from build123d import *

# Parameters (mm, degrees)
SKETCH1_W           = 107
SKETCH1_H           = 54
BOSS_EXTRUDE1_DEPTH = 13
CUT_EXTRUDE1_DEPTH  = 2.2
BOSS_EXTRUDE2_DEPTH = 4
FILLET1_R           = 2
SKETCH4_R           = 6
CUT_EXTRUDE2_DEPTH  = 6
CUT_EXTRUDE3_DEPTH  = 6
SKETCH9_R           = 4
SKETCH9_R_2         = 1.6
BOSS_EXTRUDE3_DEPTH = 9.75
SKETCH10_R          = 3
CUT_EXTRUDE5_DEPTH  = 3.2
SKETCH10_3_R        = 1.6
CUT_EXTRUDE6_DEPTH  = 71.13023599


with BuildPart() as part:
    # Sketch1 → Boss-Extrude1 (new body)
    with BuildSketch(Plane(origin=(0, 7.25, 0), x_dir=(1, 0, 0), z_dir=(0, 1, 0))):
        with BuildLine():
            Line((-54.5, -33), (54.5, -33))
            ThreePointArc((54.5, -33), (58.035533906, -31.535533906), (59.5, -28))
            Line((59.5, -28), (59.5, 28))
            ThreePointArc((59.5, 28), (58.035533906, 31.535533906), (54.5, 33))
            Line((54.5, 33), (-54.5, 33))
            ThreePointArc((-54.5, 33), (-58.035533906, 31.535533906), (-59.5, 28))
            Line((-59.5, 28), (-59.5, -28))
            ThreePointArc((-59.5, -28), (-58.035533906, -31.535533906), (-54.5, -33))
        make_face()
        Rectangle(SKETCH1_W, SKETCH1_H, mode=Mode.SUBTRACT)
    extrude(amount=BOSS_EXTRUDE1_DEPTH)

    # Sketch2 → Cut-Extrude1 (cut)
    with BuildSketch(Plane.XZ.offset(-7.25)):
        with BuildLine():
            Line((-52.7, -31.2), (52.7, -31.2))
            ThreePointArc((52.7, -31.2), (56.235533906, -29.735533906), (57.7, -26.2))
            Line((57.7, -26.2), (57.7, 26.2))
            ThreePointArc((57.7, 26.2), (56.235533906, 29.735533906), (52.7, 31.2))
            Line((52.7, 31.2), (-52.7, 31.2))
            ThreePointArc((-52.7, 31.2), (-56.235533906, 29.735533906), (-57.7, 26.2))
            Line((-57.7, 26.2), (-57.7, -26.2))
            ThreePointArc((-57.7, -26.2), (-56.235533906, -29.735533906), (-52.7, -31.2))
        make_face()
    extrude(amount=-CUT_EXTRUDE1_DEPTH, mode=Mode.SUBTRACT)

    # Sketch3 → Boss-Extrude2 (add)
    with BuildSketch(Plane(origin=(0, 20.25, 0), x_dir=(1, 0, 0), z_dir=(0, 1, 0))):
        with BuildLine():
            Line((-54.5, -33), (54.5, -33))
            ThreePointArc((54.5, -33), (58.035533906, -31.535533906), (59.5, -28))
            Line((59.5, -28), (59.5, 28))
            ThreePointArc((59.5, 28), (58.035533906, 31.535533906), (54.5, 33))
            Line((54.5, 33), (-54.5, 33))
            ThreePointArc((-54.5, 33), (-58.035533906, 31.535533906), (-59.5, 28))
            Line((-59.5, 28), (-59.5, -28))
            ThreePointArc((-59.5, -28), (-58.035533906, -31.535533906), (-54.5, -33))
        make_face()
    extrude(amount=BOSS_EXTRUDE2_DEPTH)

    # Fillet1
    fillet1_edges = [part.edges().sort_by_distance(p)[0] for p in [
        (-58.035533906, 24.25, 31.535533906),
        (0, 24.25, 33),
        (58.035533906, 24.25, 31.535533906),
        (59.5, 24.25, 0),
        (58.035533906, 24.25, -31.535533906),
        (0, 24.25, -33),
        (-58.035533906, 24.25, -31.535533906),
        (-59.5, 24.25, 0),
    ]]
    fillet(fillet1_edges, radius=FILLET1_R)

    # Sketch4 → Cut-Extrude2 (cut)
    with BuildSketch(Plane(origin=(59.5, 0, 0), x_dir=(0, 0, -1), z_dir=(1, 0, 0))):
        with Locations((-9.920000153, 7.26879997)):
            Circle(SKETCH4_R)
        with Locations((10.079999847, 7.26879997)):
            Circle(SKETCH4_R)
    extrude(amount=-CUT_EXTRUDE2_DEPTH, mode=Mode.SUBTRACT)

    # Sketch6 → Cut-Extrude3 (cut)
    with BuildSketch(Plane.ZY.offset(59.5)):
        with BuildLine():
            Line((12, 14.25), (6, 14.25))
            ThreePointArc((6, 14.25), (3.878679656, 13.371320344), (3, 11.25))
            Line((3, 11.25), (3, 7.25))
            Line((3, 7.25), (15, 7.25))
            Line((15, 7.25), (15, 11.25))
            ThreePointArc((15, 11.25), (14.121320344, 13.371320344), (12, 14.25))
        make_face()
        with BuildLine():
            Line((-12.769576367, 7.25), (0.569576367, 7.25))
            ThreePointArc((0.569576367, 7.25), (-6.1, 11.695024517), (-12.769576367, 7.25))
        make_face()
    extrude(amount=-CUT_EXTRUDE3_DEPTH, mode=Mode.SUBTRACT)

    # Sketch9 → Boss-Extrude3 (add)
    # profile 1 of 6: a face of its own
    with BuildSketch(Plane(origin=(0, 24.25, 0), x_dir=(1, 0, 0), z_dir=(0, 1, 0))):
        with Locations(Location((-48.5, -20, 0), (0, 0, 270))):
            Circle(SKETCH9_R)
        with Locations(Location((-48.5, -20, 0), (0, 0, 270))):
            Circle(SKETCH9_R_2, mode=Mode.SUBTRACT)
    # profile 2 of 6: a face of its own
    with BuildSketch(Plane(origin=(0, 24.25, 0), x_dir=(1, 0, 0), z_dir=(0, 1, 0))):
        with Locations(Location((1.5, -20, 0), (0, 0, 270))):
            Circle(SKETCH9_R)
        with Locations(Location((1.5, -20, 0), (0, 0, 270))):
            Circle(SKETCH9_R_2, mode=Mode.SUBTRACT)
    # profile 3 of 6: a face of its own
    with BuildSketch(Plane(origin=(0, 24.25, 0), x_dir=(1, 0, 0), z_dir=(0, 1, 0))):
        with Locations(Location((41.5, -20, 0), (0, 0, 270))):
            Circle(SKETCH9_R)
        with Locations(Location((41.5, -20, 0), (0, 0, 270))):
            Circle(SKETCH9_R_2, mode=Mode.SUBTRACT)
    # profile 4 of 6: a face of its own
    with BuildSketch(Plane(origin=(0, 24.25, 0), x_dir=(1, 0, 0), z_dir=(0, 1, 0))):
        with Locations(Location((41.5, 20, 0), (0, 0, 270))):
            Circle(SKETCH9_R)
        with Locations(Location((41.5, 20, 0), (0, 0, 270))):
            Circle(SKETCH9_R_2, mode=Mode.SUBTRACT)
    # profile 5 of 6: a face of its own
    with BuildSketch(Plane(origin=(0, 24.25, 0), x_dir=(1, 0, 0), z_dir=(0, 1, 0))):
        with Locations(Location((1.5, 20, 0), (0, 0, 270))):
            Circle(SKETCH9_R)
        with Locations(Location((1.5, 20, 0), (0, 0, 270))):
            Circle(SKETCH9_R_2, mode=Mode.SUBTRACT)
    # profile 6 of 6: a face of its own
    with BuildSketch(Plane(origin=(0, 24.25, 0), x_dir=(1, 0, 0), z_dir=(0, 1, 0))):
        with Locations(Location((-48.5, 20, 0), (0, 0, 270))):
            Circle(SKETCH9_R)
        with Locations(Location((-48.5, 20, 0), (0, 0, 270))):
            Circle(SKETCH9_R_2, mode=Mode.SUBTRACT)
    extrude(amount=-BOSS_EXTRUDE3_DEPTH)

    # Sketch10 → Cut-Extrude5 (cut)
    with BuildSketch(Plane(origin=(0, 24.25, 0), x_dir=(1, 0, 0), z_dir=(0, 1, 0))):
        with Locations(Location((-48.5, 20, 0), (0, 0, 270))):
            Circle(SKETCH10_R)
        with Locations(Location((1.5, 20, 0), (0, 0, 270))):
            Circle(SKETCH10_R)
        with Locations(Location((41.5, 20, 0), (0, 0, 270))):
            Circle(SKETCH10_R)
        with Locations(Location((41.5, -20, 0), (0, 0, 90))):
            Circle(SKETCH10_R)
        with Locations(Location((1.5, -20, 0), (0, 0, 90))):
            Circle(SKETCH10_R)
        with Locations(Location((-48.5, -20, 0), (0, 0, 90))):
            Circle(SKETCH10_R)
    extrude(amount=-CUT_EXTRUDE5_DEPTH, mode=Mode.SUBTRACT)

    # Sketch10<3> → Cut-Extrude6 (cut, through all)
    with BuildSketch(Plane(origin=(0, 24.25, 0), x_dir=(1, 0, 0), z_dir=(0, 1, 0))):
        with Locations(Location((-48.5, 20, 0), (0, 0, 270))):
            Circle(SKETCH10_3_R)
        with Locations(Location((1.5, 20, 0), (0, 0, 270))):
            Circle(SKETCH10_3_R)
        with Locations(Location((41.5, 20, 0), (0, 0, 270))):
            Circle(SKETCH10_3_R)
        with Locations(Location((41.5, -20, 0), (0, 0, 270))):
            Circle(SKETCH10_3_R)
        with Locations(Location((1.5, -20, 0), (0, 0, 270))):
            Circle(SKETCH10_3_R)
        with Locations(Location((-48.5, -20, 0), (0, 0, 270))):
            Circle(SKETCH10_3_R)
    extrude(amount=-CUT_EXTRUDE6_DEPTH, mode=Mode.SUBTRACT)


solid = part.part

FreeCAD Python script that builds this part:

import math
import FreeCAD as App
import Part
import Sketcher
from FreeCAD import Vector
Q = App.Units.Quantity


def edges_at(feature, points):
    """Names of the edges that pass closest to the given points."""
    edges = feature.Shape.Edges
    near = lambda p: min(range(len(edges)), key=lambda i: edges[i].distToShape(Part.Vertex(*p))[0])
    return sorted({f"Edge{near(p) + 1}" for p in points})

doc = App.newDocument("Part")
body = doc.addObject("PartDesign::Body", "Body")

# Sketch on XZ plane
sketch1 = body.newObject("Sketcher::SketchObject", "Sketch")
sketch1.AttachmentSupport = (doc.getObject("XZ_Plane"), [""])
sketch1.MapMode = "FlatFace"
sketch1.AttachmentOffset = App.Placement(Vector(0, 0, -7.25), App.Rotation())
sketch1.addGeometry([
    Part.LineSegment(Vector(-54.5, 33, 0), Vector(54.5, 33, 0)),  # 0
    Part.ArcOfCircle(Part.Circle(Vector(54.5, 28, 0), Vector(0, 0, 1), 5), math.radians(0), math.radians(90)),  # 1
    Part.LineSegment(Vector(59.5, 28, 0), Vector(59.5, -28, 0)),  # 2
    Part.ArcOfCircle(Part.Circle(Vector(54.5, -28, 0), Vector(0, 0, 1), 5), math.radians(-90), math.radians(0)),  # 3
    Part.LineSegment(Vector(54.5, -33, 0), Vector(-54.5, -33, 0)),  # 4
    Part.ArcOfCircle(Part.Circle(Vector(-54.5, -28, 0), Vector(0, 0, 1), 5), math.radians(180), math.radians(270)),  # 5
    Part.LineSegment(Vector(-59.5, -28, 0), Vector(-59.5, 28, 0)),  # 6
    Part.ArcOfCircle(Part.Circle(Vector(-54.5, 28, 0), Vector(0, 0, 1), 5), math.radians(90), math.radians(180)),  # 7
    Part.LineSegment(Vector(53.5, 27, 0), Vector(-53.5, 27, 0)),  # 8
    Part.LineSegment(Vector(-53.5, 27, 0), Vector(-53.5, -27, 0)),  # 9
    Part.LineSegment(Vector(-53.5, -27, 0), Vector(53.5, -27, 0)),  # 10
    Part.LineSegment(Vector(53.5, -27, 0), Vector(53.5, 27, 0)),  # 11
], False)
sketch1.addConstraint([
    Sketcher.Constraint("Tangent", 0, 2, 1, 2),
    Sketcher.Constraint("Tangent", 1, 1, 2, 1),
    Sketcher.Constraint("Tangent", 2, 2, 3, 2),
    Sketcher.Constraint("Tangent", 3, 1, 4, 1),
    Sketcher.Constraint("Tangent", 4, 2, 5, 2),
    Sketcher.Constraint("Tangent", 5, 1, 6, 1),
    Sketcher.Constraint("Tangent", 6, 2, 7, 2),
    Sketcher.Constraint("Tangent", 7, 1, 0, 1),
    Sketcher.Constraint("Coincident", 8, 2, 9, 1),
    Sketcher.Constraint("Coincident", 9, 2, 10, 1),
    Sketcher.Constraint("Coincident", 10, 2, 11, 1),
    Sketcher.Constraint("Coincident", 11, 2, 8, 1),
    Sketcher.Constraint("Horizontal", 0),
    Sketcher.Constraint("Vertical", 2),
    Sketcher.Constraint("Horizontal", 4),
    Sketcher.Constraint("Vertical", 6),
    Sketcher.Constraint("Horizontal", 8),
    Sketcher.Constraint("Vertical", 9),
    Sketcher.Constraint("Horizontal", 10),
    Sketcher.Constraint("Vertical", 11),
    Sketcher.Constraint("Equal", 1, 3),
    Sketcher.Constraint("Equal", 3, 5),
    Sketcher.Constraint("Equal", 5, 7),
    Sketcher.Constraint("Symmetric", 1, 3, 5, 3, -1, 1),
    Sketcher.Constraint("Symmetric", 8, 2, 10, 2, -1, 1),
    Sketcher.Constraint("Radius", 1, Q("5 mm")),
    Sketcher.Constraint("DistanceX", 0, 1, 0, 2, Q("109 mm")),
    Sketcher.Constraint("DistanceX", 8, 2, 8, 1, Q("107 mm")),
    Sketcher.Constraint("DistanceY", 2, 2, 2, 1, Q("56 mm")),
    Sketcher.Constraint("DistanceY", 9, 2, 9, 1, Q("54 mm")),
])
pad1 = body.newObject("PartDesign::Pad", "Pad")
pad1.Profile = sketch1
pad1.Length = 13
pad1.Reversed = True

# Sketch on XZ plane
sketch2 = body.newObject("Sketcher::SketchObject", "Sketch001")
sketch2.AttachmentSupport = (doc.getObject("XZ_Plane"), [""])
sketch2.MapMode = "FlatFace"
sketch2.AttachmentOffset = App.Placement(Vector(0, 0, -7.25), App.Rotation())
sketch2.addGeometry([
    Part.LineSegment(Vector(-52.7, -31.2, 0), Vector(52.7, -31.2, 0)),  # 0
    Part.ArcOfCircle(Part.Circle(Vector(52.7, -26.2, 0), Vector(0, 0, 1), 5), math.radians(-90), math.radians(0)),  # 1
    Part.LineSegment(Vector(57.7, -26.2, 0), Vector(57.7, 26.2, 0)),  # 2
    Part.ArcOfCircle(Part.Circle(Vector(52.7, 26.2, 0), Vector(0, 0, 1), 5), math.radians(0), math.radians(90)),  # 3
    Part.LineSegment(Vector(52.7, 31.2, 0), Vector(-52.7, 31.2, 0)),  # 4
    Part.ArcOfCircle(Part.Circle(Vector(-52.7, 26.2, 0), Vector(0, 0, 1), 5), math.radians(90), math.radians(180)),  # 5
    Part.LineSegment(Vector(-57.7, 26.2, 0), Vector(-57.7, -26.2, 0)),  # 6
    Part.ArcOfCircle(Part.Circle(Vector(-52.7, -26.2, 0), Vector(0, 0, 1), 5), math.radians(180), math.radians(270)),  # 7
], False)
sketch2.addConstraint([
    Sketcher.Constraint("Tangent", 0, 2, 1, 1),
    Sketcher.Constraint("Tangent", 1, 2, 2, 1),
    Sketcher.Constraint("Tangent", 2, 2, 3, 1),
    Sketcher.Constraint("Tangent", 3, 2, 4, 1),
    Sketcher.Constraint("Tangent", 4, 2, 5, 1),
    Sketcher.Constraint("Tangent", 5, 2, 6, 1),
    Sketcher.Constraint("Tangent", 6, 2, 7, 1),
    Sketcher.Constraint("Tangent", 7, 2, 0, 1),
    Sketcher.Constraint("Horizontal", 0),
    Sketcher.Constraint("Vertical", 2),
    Sketcher.Constraint("Horizontal", 4),
    Sketcher.Constraint("Vertical", 6),
    Sketcher.Constraint("Equal", 1, 3),
    Sketcher.Constraint("Equal", 3, 5),
    Sketcher.Constraint("Equal", 5, 7),
    Sketcher.Constraint("Symmetric", 1, 3, 5, 3, -1, 1),
    Sketcher.Constraint("Radius", 1, Q("5 mm")),
    Sketcher.Constraint("DistanceX", 0, 1, 0, 2, Q("105.4 mm")),
    Sketcher.Constraint("DistanceY", 2, 1, 2, 2, Q("52.4 mm")),
])
pocket1 = body.newObject("PartDesign::Pocket", "Pocket")
pocket1.Profile = sketch2
pocket1.Length = 2.2

# Sketch on XZ plane
sketch3 = body.newObject("Sketcher::SketchObject", "Sketch002")
sketch3.AttachmentSupport = (doc.getObject("XZ_Plane"), [""])
sketch3.MapMode = "FlatFace"
sketch3.AttachmentOffset = App.Placement(Vector(0, 0, -20.25), App.Rotation())
sketch3.addGeometry([
    Part.LineSegment(Vector(-54.5, 33, 0), Vector(54.5, 33, 0)),  # 0
    Part.ArcOfCircle(Part.Circle(Vector(54.5, 28, 0), Vector(0, 0, 1), 5), math.radians(0), math.radians(90)),  # 1
    Part.LineSegment(Vector(59.5, 28, 0), Vector(59.5, -28, 0)),  # 2
    Part.ArcOfCircle(Part.Circle(Vector(54.5, -28, 0), Vector(0, 0, 1), 5), math.radians(-90), math.radians(0)),  # 3
    Part.LineSegment(Vector(54.5, -33, 0), Vector(-54.5, -33, 0)),  # 4
    Part.ArcOfCircle(Part.Circle(Vector(-54.5, -28, 0), Vector(0, 0, 1), 5), math.radians(180), math.radians(270)),  # 5
    Part.LineSegment(Vector(-59.5, -28, 0), Vector(-59.5, 28, 0)),  # 6
    Part.ArcOfCircle(Part.Circle(Vector(-54.5, 28, 0), Vector(0, 0, 1), 5), math.radians(90), math.radians(180)),  # 7
], False)
sketch3.addConstraint([
    Sketcher.Constraint("Tangent", 0, 2, 1, 2),
    Sketcher.Constraint("Tangent", 1, 1, 2, 1),
    Sketcher.Constraint("Tangent", 2, 2, 3, 2),
    Sketcher.Constraint("Tangent", 3, 1, 4, 1),
    Sketcher.Constraint("Tangent", 4, 2, 5, 2),
    Sketcher.Constraint("Tangent", 5, 1, 6, 1),
    Sketcher.Constraint("Tangent", 6, 2, 7, 2),
    Sketcher.Constraint("Tangent", 7, 1, 0, 1),
    Sketcher.Constraint("Horizontal", 0),
    Sketcher.Constraint("Vertical", 2),
    Sketcher.Constraint("Horizontal", 4),
    Sketcher.Constraint("Vertical", 6),
    Sketcher.Constraint("Equal", 1, 3),
    Sketcher.Constraint("Equal", 3, 5),
    Sketcher.Constraint("Equal", 5, 7),
    Sketcher.Constraint("Symmetric", 1, 3, 5, 3, -1, 1),
    Sketcher.Constraint("Radius", 1, Q("5 mm")),
    Sketcher.Constraint("DistanceX", 0, 1, 0, 2, Q("109 mm")),
    Sketcher.Constraint("DistanceY", 2, 2, 2, 1, Q("56 mm")),
])
pad2 = body.newObject("PartDesign::Pad", "Pad001")
pad2.Profile = sketch3
pad2.Length = 4
pad2.Reversed = True
doc.recompute()

fillet = body.newObject("PartDesign::Fillet", "Fillet")
fillet.Base = (pad2, edges_at(pad2, [
    (-58.036, 24.25, 31.536),
    (0, 24.25, 33),
    (58.036, 24.25, 31.536),
    (59.5, 24.25, 0),
    (58.036, 24.25, -31.536),
    (0, 24.25, -33),
    (-58.036, 24.25, -31.536),
    (-59.5, 24.25, 0),
]))
fillet.Radius = 2

# Sketch on YZ plane
sketch4 = body.newObject("Sketcher::SketchObject", "Sketch003")
sketch4.AttachmentSupport = (doc.getObject("YZ_Plane"), [""])
sketch4.MapMode = "FlatFace"
sketch4.AttachmentOffset = App.Placement(Vector(0, 0, 59.5), App.Rotation())
sketch4.addGeometry([
    Part.Circle(Vector(7.2688, 9.92, 0), Vector(0, 0, 1), 6),
    Part.Circle(Vector(7.2688, -10.08, 0), Vector(0, 0, 1), 6),
], False)
sketch4.addConstraint([
    Sketcher.Constraint("Equal", 0, 1),
    Sketcher.Constraint("Vertical", 0, 3, 1, 3),
    Sketcher.Constraint("Diameter", 0, Q("12 mm")),
    Sketcher.Constraint("DistanceY", 1, 3, 0, 3, Q("20 mm")),
    Sketcher.Constraint("DistanceY", -1, 1, 0, 3, Q("9.92 mm")),
    Sketcher.Constraint("DistanceX", -1, 1, 0, 3, Q("7.2688 mm")),
])
pocket2 = body.newObject("PartDesign::Pocket", "Pocket001")
pocket2.Profile = sketch4
pocket2.Length = 6

# Sketch on YZ plane
sketch5 = body.newObject("Sketcher::SketchObject", "Sketch004")
sketch5.AttachmentSupport = (doc.getObject("YZ_Plane"), [""])
sketch5.MapMode = "FlatFace"
sketch5.AttachmentOffset = App.Placement(Vector(0, 0, -59.5), App.Rotation())
sketch5.addGeometry([
    Part.LineSegment(Vector(14.25, 12, 0), Vector(14.25, 6, 0)),  # 0
    Part.ArcOfCircle(Part.Circle(Vector(11.25, 6, 0), Vector(0, 0, 1), 3), math.radians(-90), math.radians(0)),  # 1
    Part.LineSegment(Vector(11.25, 3, 0), Vector(7.25, 3, 0)),  # 2
    Part.LineSegment(Vector(7.25, 3, 0), Vector(7.25, 15, 0)),  # 3
    Part.LineSegment(Vector(7.25, 15, 0), Vector(11.25, 15, 0)),  # 4
    Part.ArcOfCircle(Part.Circle(Vector(11.25, 12, 0), Vector(0, 0, 1), 3), math.radians(0), math.radians(90)),  # 5
    Part.LineSegment(Vector(7.25, -12.769576, 0), Vector(7.25, 0.569576, 0)),  # 6
    Part.ArcOfCircle(Part.Circle(Vector(4.4688, -6.1, 0), Vector(0, 0, 1), 7.226225), math.radians(-67.36396), math.radians(67.36396)),  # 7
], False)
sketch5.addConstraint([
    Sketcher.Constraint("Tangent", 0, 2, 1, 2),
    Sketcher.Constraint("Tangent", 1, 1, 2, 1),
    Sketcher.Constraint("Coincident", 2, 2, 3, 1),
    Sketcher.Constraint("Coincident", 3, 2, 4, 1),
    Sketcher.Constraint("Tangent", 4, 2, 5, 2),
    Sketcher.Constraint("Tangent", 5, 1, 0, 1),
    Sketcher.Constraint("Coincident", 6, 1, 7, 1),
    Sketcher.Constraint("Coincident", 7, 2, 6, 2),
    Sketcher.Constraint("Vertical", 0),
    Sketcher.Constraint("Horizontal", 2),
    Sketcher.Constraint("Vertical", 3),
    Sketcher.Constraint("Horizontal", 4),
    Sketcher.Constraint("Vertical", 6),
    Sketcher.Constraint("Equal", 1, 5),
    Sketcher.Constraint("Vertical", 3, 2, 6, 1),
    Sketcher.Constraint("Radius", 1, Q("3 mm")),
    Sketcher.Constraint("DistanceX", 2, 2, 2, 1, Q("4 mm")),
    Sketcher.Constraint("DistanceY", 0, 2, 0, 1, Q("6 mm")),
    Sketcher.Constraint("DistanceY", -1, 1, 1, 3, Q("6 mm")),
    Sketcher.Constraint("DistanceY", 7, 3, -1, 1, Q("6.1 mm")),
    Sketcher.Constraint("DistanceX", -1, 1, 1, 3, Q("11.25 mm")),
    Sketcher.Constraint("Radius", 7, Q("7.226225 mm")),
    Sketcher.Constraint("DistanceX", -1, 1, 7, 3, Q("4.4688 mm")),
])
pocket3 = body.newObject("PartDesign::Pocket", "Pocket002")
pocket3.Profile = sketch5
pocket3.Length = 6
pocket3.Reversed = True

# Sketch on XZ plane
sketch6 = body.newObject("Sketcher::SketchObject", "Sketch005")
sketch6.AttachmentSupport = (doc.getObject("XZ_Plane"), [""])
sketch6.MapMode = "FlatFace"
sketch6.AttachmentOffset = App.Placement(Vector(0, 0, -24.25), App.Rotation())
sketch6.addGeometry([
    Part.Circle(Vector(-48.5, 20, 0), Vector(0, 0, 1), 4),  # 0
    Part.Circle(Vector(-48.5, 20, 0), Vector(0, 0, 1), 1.6),  # 1
    Part.Circle(Vector(1.5, 20, 0), Vector(0, 0, 1), 4),  # 2
    Part.Circle(Vector(1.5, 20, 0), Vector(0, 0, 1), 1.6),  # 3
    Part.Circle(Vector(41.5, 20, 0), Vector(0, 0, 1), 4),  # 4
    Part.Circle(Vector(41.5, 20, 0), Vector(0, 0, 1), 1.6),  # 5
    Part.Circle(Vector(41.5, -20, 0), Vector(0, 0, 1), 4),  # 6
    Part.Circle(Vector(41.5, -20, 0), Vector(0, 0, 1), 1.6),  # 7
    Part.Circle(Vector(1.5, -20, 0), Vector(0, 0, 1), 4),  # 8
    Part.Circle(Vector(1.5, -20, 0), Vector(0, 0, 1), 1.6),  # 9
    Part.Circle(Vector(-48.5, -20, 0), Vector(0, 0, 1), 4),  # 10
    Part.Circle(Vector(-48.5, -20, 0), Vector(0, 0, 1), 1.6),  # 11
], False)
sketch6.addConstraint([
    Sketcher.Constraint("Coincident", 1, 3, 0, 3),
    Sketcher.Constraint("Coincident", 3, 3, 2, 3),
    Sketcher.Constraint("Coincident", 5, 3, 4, 3),
    Sketcher.Constraint("Coincident", 7, 3, 6, 3),
    Sketcher.Constraint("Coincident", 9, 3, 8, 3),
    Sketcher.Constraint("Coincident", 11, 3, 10, 3),
    Sketcher.Constraint("Equal", 0, 2),
    Sketcher.Constraint("Equal", 1, 3),
    Sketcher.Constraint("Equal", 2, 4),
    Sketcher.Constraint("Equal", 3, 5),
    Sketcher.Constraint("Equal", 4, 6),
    Sketcher.Constraint("Equal", 5, 7),
    Sketcher.Constraint("Equal", 6, 8),
    Sketcher.Constraint("Equal", 7, 9),
    Sketcher.Constraint("Equal", 8, 10),
    Sketcher.Constraint("Equal", 9, 11),
    Sketcher.Constraint("Symmetric", 4, 3, 6, 3, -1),
    Sketcher.Constraint("Symmetric", 2, 3, 8, 3, -1),
    Sketcher.Constraint("Symmetric", 0, 3, 10, 3, -1),
    Sketcher.Constraint("Horizontal", 1, 3, 2, 3),
    Sketcher.Constraint("Horizontal", 3, 3, 4, 3),
    Sketcher.Constraint("Diameter", 0, Q("8 mm")),
    Sketcher.Constraint("Diameter", 1, Q("3.2 mm")),
    Sketcher.Constraint("DistanceY", -1, 1, 0, 3, Q("20 mm")),
    Sketcher.Constraint("DistanceX", 0, 3, 2, 3, Q("50 mm")),
    Sketcher.Constraint("DistanceX", 2, 3, 4, 3, Q("40 mm")),
    Sketcher.Constraint("DistanceX", 0, 3, -1, 1, Q("48.5 mm")),
])
pad3 = body.newObject("PartDesign::Pad", "Pad002")
pad3.Profile = sketch6
pad3.Length = 9.75

# Sketch on XZ plane
sketch7 = body.newObject("Sketcher::SketchObject", "Sketch006")
sketch7.AttachmentSupport = (doc.getObject("XZ_Plane"), [""])
sketch7.MapMode = "FlatFace"
sketch7.AttachmentOffset = App.Placement(Vector(0, 0, -24.25), App.Rotation())
sketch7.addGeometry([
    Part.Circle(Vector(-48.5, -20, 0), Vector(0, 0, 1), 3),  # 0
    Part.Circle(Vector(1.5, -20, 0), Vector(0, 0, 1), 3),  # 1
    Part.Circle(Vector(41.5, -20, 0), Vector(0, 0, 1), 3),  # 2
    Part.Circle(Vector(41.5, 20, 0), Vector(0, 0, 1), 3),  # 3
    Part.Circle(Vector(1.5, 20, 0), Vector(0, 0, 1), 3),  # 4
    Part.Circle(Vector(-48.5, 20, 0), Vector(0, 0, 1), 3),  # 5
], False)
sketch7.addConstraint([
    Sketcher.Constraint("Equal", 0, 1),
    Sketcher.Constraint("Equal", 1, 2),
    Sketcher.Constraint("Equal", 2, 3),
    Sketcher.Constraint("Equal", 3, 4),
    Sketcher.Constraint("Equal", 4, 5),
    Sketcher.Constraint("Symmetric", 2, 3, 3, 3, -1),
    Sketcher.Constraint("Symmetric", 1, 3, 4, 3, -1),
    Sketcher.Constraint("Symmetric", 0, 3, 5, 3, -1),
    Sketcher.Constraint("Horizontal", 0, 3, 1, 3),
    Sketcher.Constraint("Horizontal", 1, 3, 2, 3),
    Sketcher.Constraint("Diameter", 0, Q("6 mm")),
    Sketcher.Constraint("DistanceY", 0, 3, -1, 1, Q("20 mm")),
    Sketcher.Constraint("DistanceX", 0, 3, 1, 3, Q("50 mm")),
    Sketcher.Constraint("DistanceX", 1, 3, 2, 3, Q("40 mm")),
    Sketcher.Constraint("DistanceX", 0, 3, -1, 1, Q("48.5 mm")),
])
pocket4 = body.newObject("PartDesign::Pocket", "Pocket003")
pocket4.Profile = sketch7
pocket4.Length = 3.2
pocket4.Reversed = True

# Sketch on XZ plane
sketch8 = body.newObject("Sketcher::SketchObject", "Sketch007")
sketch8.AttachmentSupport = (doc.getObject("XZ_Plane"), [""])
sketch8.MapMode = "FlatFace"
sketch8.AttachmentOffset = App.Placement(Vector(0, 0, -24.25), App.Rotation())
sketch8.addGeometry([
    Part.Circle(Vector(-48.5, -20, 0), Vector(0, 0, 1), 1.6),  # 0
    Part.Circle(Vector(1.5, -20, 0), Vector(0, 0, 1), 1.6),  # 1
    Part.Circle(Vector(41.5, -20, 0), Vector(0, 0, 1), 1.6),  # 2
    Part.Circle(Vector(41.5, 20, 0), Vector(0, 0, 1), 1.6),  # 3
    Part.Circle(Vector(1.5, 20, 0), Vector(0, 0, 1), 1.6),  # 4
    Part.Circle(Vector(-48.5, 20, 0), Vector(0, 0, 1), 1.6),  # 5
], False)
sketch8.addConstraint([
    Sketcher.Constraint("Equal", 0, 1),
    Sketcher.Constraint("Equal", 1, 2),
    Sketcher.Constraint("Equal", 2, 3),
    Sketcher.Constraint("Equal", 3, 4),
    Sketcher.Constraint("Equal", 4, 5),
    Sketcher.Constraint("Symmetric", 2, 3, 3, 3, -1),
    Sketcher.Constraint("Symmetric", 1, 3, 4, 3, -1),
    Sketcher.Constraint("Symmetric", 0, 3, 5, 3, -1),
    Sketcher.Constraint("Horizontal", 0, 3, 1, 3),
    Sketcher.Constraint("Horizontal", 1, 3, 2, 3),
    Sketcher.Constraint("Diameter", 0, Q("3.2 mm")),
    Sketcher.Constraint("DistanceY", 0, 3, -1, 1, Q("20 mm")),
    Sketcher.Constraint("DistanceX", 0, 3, 1, 3, Q("50 mm")),
    Sketcher.Constraint("DistanceX", 1, 3, 2, 3, Q("40 mm")),
    Sketcher.Constraint("DistanceX", 0, 3, -1, 1, Q("48.5 mm")),
])
pocket5 = body.newObject("PartDesign::Pocket", "Pocket004")
pocket5.Profile = sketch8
pocket5.Type = "ThroughAll"
pocket5.Reversed = True

doc.recompute()
